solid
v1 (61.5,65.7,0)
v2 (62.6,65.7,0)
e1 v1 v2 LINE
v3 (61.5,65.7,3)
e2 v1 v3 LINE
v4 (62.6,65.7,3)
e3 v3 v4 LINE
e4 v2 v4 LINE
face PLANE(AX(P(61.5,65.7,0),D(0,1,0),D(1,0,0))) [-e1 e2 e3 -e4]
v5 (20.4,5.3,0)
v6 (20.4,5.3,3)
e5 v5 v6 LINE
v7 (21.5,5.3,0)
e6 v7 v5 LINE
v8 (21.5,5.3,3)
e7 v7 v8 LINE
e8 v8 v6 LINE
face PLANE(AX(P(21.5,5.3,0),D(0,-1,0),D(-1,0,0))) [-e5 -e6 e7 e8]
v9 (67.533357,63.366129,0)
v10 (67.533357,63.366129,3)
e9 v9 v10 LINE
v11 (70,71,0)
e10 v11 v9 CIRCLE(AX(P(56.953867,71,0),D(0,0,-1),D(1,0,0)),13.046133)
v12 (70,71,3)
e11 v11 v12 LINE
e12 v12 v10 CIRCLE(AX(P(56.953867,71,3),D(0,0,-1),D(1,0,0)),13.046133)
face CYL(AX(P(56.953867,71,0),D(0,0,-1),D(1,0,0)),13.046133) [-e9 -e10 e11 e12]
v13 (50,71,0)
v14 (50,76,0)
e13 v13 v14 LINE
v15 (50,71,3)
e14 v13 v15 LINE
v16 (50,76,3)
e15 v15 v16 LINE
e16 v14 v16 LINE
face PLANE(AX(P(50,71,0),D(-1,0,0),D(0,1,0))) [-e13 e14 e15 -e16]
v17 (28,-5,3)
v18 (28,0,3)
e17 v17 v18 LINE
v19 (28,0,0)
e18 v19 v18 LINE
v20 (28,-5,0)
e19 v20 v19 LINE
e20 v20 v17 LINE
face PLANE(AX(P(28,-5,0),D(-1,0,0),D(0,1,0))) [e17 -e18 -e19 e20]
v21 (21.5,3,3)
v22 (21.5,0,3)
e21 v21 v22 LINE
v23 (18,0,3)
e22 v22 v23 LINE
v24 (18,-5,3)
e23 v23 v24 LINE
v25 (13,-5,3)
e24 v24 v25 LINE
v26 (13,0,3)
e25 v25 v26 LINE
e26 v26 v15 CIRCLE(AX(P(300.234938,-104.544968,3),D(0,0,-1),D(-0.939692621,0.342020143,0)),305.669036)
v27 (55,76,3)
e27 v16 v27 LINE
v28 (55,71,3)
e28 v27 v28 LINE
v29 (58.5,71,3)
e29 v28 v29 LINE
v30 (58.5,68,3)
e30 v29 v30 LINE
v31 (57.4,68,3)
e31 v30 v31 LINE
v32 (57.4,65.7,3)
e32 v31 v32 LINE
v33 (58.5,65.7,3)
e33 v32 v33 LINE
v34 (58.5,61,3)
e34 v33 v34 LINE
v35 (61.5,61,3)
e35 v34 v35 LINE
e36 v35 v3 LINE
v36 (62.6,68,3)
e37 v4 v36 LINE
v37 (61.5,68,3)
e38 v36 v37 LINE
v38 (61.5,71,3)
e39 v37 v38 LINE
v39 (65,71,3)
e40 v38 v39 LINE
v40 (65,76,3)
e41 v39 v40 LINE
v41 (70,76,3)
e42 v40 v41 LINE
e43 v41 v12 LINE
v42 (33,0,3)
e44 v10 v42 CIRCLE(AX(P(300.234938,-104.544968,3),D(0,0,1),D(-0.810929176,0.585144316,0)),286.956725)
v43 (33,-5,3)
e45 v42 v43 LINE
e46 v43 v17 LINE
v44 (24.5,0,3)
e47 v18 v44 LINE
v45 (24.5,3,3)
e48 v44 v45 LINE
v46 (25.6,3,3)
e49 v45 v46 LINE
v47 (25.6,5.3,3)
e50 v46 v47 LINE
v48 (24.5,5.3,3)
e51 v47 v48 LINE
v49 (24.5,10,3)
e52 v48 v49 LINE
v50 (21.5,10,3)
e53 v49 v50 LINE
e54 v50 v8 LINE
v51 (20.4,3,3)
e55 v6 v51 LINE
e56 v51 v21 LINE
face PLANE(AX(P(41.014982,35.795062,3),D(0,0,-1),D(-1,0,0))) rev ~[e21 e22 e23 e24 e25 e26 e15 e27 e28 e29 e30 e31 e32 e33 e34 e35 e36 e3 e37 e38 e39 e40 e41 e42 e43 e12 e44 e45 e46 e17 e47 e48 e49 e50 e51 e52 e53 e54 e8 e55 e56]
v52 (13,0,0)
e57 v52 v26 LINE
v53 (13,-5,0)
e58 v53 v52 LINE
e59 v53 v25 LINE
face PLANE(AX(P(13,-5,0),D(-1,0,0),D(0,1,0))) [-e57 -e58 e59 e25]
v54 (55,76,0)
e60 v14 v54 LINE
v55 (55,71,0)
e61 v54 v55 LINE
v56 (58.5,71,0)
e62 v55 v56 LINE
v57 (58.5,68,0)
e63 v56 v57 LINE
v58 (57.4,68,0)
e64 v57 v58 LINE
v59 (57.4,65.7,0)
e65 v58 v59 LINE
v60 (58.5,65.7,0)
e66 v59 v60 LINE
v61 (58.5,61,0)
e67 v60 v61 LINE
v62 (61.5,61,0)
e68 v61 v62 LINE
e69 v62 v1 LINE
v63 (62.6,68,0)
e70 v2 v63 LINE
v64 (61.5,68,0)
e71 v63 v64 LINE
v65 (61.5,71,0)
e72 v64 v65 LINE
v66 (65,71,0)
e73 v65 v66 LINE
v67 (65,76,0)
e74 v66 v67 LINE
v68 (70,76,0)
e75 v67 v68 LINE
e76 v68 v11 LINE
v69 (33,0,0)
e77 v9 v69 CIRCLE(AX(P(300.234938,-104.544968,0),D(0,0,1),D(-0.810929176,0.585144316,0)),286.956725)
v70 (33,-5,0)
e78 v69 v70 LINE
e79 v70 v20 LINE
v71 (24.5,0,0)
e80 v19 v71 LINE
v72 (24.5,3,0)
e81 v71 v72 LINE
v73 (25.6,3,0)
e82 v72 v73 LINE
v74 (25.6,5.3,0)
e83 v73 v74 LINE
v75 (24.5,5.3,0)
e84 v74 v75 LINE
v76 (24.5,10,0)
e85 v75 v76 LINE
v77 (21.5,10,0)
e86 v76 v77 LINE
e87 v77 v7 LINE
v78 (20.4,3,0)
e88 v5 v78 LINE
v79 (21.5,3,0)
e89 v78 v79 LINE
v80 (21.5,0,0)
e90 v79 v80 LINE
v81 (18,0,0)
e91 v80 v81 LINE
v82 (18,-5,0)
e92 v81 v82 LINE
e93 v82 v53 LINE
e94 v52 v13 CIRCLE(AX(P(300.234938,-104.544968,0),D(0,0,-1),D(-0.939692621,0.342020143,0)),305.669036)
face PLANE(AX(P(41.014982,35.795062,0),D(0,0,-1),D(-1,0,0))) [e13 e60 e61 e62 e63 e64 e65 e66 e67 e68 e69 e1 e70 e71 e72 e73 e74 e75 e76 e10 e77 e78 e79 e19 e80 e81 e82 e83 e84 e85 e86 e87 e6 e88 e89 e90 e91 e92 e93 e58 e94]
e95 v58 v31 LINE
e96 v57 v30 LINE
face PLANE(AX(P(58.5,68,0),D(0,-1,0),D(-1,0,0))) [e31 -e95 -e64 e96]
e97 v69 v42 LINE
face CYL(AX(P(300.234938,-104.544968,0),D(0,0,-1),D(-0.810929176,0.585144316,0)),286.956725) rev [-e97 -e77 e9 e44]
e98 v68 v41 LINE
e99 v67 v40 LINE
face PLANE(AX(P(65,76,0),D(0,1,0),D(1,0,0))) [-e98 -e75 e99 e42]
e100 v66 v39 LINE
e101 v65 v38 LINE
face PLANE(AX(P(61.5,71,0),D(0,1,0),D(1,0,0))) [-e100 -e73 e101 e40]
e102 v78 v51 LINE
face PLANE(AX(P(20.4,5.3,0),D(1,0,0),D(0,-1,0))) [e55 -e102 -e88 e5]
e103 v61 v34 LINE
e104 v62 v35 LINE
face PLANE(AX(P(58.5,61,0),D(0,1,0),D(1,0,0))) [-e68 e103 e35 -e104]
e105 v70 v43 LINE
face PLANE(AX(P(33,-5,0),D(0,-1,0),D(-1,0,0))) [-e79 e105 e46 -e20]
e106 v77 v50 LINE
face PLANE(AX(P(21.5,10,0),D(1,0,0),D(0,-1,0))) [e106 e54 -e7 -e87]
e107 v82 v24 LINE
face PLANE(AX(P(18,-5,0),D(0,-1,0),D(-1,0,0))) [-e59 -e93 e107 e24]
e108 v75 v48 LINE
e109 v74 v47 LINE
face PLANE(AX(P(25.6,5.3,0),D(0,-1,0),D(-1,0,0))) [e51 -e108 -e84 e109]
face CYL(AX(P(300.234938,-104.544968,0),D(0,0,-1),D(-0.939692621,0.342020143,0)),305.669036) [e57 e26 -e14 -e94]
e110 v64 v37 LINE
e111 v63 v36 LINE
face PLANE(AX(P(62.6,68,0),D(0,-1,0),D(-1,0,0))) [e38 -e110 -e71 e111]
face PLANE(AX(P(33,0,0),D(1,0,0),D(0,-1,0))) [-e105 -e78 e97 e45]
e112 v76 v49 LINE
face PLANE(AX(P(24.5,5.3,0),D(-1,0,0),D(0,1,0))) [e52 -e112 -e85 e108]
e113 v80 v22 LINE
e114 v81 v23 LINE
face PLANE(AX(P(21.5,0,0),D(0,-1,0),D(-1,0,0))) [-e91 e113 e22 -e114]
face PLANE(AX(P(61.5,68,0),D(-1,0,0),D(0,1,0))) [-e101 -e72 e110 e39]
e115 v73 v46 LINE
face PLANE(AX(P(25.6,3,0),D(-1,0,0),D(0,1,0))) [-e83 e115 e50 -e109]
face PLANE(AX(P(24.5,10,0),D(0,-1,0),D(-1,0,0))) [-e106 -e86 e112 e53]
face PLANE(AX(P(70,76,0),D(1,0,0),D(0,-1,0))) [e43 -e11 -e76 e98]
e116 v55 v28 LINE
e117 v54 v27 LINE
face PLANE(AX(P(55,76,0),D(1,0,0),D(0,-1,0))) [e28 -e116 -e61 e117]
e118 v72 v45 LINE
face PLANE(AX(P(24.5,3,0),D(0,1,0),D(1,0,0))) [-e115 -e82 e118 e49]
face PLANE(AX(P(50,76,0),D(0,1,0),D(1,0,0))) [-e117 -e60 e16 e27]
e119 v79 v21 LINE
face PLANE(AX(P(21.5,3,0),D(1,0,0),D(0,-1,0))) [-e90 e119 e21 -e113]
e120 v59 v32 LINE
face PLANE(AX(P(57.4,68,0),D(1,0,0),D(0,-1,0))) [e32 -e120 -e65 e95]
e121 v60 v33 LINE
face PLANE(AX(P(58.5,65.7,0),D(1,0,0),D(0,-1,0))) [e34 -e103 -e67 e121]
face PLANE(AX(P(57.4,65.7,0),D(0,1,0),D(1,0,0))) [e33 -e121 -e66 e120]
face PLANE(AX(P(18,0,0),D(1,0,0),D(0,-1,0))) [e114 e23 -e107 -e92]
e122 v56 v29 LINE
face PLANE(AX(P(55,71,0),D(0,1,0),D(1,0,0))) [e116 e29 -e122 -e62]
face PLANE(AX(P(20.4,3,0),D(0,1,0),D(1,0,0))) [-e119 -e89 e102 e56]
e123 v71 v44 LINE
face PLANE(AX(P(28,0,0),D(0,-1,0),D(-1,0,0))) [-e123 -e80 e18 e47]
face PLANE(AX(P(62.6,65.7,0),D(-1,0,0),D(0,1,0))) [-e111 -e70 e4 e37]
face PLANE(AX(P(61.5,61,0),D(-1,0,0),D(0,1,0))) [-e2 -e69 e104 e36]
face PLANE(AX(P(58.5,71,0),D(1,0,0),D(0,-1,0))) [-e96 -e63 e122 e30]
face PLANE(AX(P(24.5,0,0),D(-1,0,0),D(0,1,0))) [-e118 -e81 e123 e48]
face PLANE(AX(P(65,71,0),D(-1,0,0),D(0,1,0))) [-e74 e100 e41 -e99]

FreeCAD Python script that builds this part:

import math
import FreeCAD as App
import Part
import Sketcher
from FreeCAD import Vector

doc = App.newDocument("Part")
params = doc.addObject("Spreadsheet::Sheet", "Params")
for row, (alias, value) in enumerate([
    ("sketch1_width", "3 mm"),
    ("sketch1_width2", "5 mm"),
    ("sketch1_width3", "3.5 mm"),
    ("sketch1_width4", "1.1 mm"),
    ("sketch1_height", "2.3 mm"),
    ("pad1_length", "3 mm"),
], start=1):
    params.set(f"A{row}", alias)
    params.set(f"B{row}", "=" + value)
    params.setAlias(f"B{row}", alias)

body = doc.addObject("PartDesign::Body", "Body")

# Sketch on XY plane
sketch1 = body.newObject("Sketcher::SketchObject", "Sketch")
sketch1.AttachmentSupport = (doc.getObject("XY_Plane"), [""])
sketch1.MapMode = "FlatFace"
sketch1.addGeometry(Part.LineSegment(Vector(65, 71, 0), Vector(61.5, 71, 0)), False)
sketch1.addGeometry(Part.LineSegment(Vector(61.5, 71, 0), Vector(61.5, 68, 0)), False)
sketch1.addGeometry(Part.LineSegment(Vector(61.5, 68, 0), Vector(62.6, 68, 0)), False)
sketch1.addGeometry(Part.LineSegment(Vector(62.6, 68, 0), Vector(62.6, 65.7, 0)), False)
sketch1.addGeometry(Part.LineSegment(Vector(62.6, 65.7, 0), Vector(61.5, 65.7, 0)), False)
sketch1.addGeometry(Part.LineSegment(Vector(61.5, 65.7, 0), Vector(61.5, 61, 0)), False)
sketch1.addGeometry(Part.LineSegment(Vector(61.5, 61, 0), Vector(58.5, 61, 0)), False)
sketch1.addGeometry(Part.LineSegment(Vector(58.5, 61, 0), Vector(58.5, 65.7, 0)), False)
sketch1.addGeometry(Part.LineSegment(Vector(58.5, 65.7, 0), Vector(57.4, 65.7, 0)), False)
sketch1.addGeometry(Part.LineSegment(Vector(57.4, 65.7, 0), Vector(57.4, 68, 0)), False)
sketch1.addGeometry(Part.LineSegment(Vector(57.4, 68, 0), Vector(58.5, 68, 0)), False)
sketch1.addGeometry(Part.LineSegment(Vector(58.5, 68, 0), Vector(58.5, 71, 0)), False)
sketch1.addGeometry(Part.LineSegment(Vector(58.5, 71, 0), Vector(55, 71, 0)), False)
sketch1.addGeometry(Part.LineSegment(Vector(55, 71, 0), Vector(55, 76, 0)), False)
sketch1.addGeometry(Part.LineSegment(Vector(55, 76, 0), Vector(50, 76, 0)), False)
sketch1.addGeometry(Part.LineSegment(Vector(50, 76, 0), Vector(50, 71, 0)), False)
sketch1.addGeometry(Part.ArcOfCircle(Part.Circle(Vector(300.234938, -104.544968, 0), Vector(0, 0, 1), 305.669036), math.radians(144.949549), math.radians(160)), False)
sketch1.addGeometry(Part.LineSegment(Vector(13, 0, 0), Vector(13, -5, 0)), False)
sketch1.addGeometry(Part.LineSegment(Vector(13, -5, 0), Vector(18, -5, 0)), False)
sketch1.addGeometry(Part.LineSegment(Vector(18, -5, 0), Vector(18, 0, 0)), False)
sketch1.addGeometry(Part.LineSegment(Vector(18, 0, 0), Vector(21.5, 0, 0)), False)
sketch1.addGeometry(Part.LineSegment(Vector(21.5, 0, 0), Vector(21.5, 3, 0)), False)
sketch1.addGeometry(Part.LineSegment(Vector(21.5, 3, 0), Vector(20.4, 3, 0)), False)
sketch1.addGeometry(Part.LineSegment(Vector(20.4, 3, 0), Vector(20.4, 5.3, 0)), False)
sketch1.addGeometry(Part.LineSegment(Vector(20.4, 5.3, 0), Vector(21.5, 5.3, 0)), False)
sketch1.addGeometry(Part.LineSegment(Vector(21.5, 5.3, 0), Vector(21.5, 10, 0)), False)
sketch1.addGeometry(Part.LineSegment(Vector(21.5, 10, 0), Vector(24.5, 10, 0)), False)
sketch1.addGeometry(Part.LineSegment(Vector(24.5, 10, 0), Vector(24.5, 5.3, 0)), False)
sketch1.addGeometry(Part.LineSegment(Vector(24.5, 5.3, 0), Vector(25.6, 5.3, 0)), False)
sketch1.addGeometry(Part.LineSegment(Vector(25.6, 5.3, 0), Vector(25.6, 3, 0)), False)
sketch1.addGeometry(Part.LineSegment(Vector(25.6, 3, 0), Vector(24.5, 3, 0)), False)
sketch1.addGeometry(Part.LineSegment(Vector(24.5, 3, 0), Vector(24.5, 0, 0)), False)
sketch1.addGeometry(Part.LineSegment(Vector(24.5, 0, 0), Vector(28, 0, 0)), False)
sketch1.addGeometry(Part.LineSegment(Vector(28, 0, 0), Vector(28, -5, 0)), False)
sketch1.addGeometry(Part.LineSegment(Vector(28, -5, 0), Vector(33, -5, 0)), False)
sketch1.addGeometry(Part.LineSegment(Vector(33, -5, 0), Vector(33, 0, 0)), False)
sketch1.addGeometry(Part.ArcOfCircle(Part.Circle(Vector(300.234938, -104.544968, 0), Vector(0, 0, 1), 286.956725), math.radians(144.186814), math.radians(158.634068)), False)
sketch1.addGeometry(Part.ArcOfCircle(Part.Circle(Vector(56.953867, 71, 0), Vector(0, 0, 1), 13.046133), math.radians(-35.813186), math.radians(0)), False)
sketch1.addGeometry(Part.LineSegment(Vector(70, 71, 0), Vector(70, 76, 0)), False)
sketch1.addGeometry(Part.LineSegment(Vector(70, 76, 0), Vector(65, 76, 0)), False)
sketch1.addGeometry(Part.LineSegment(Vector(65, 76, 0), Vector(65, 71, 0)), False)
sketch1.addConstraint(Sketcher.Constraint("Coincident", 0, 2, 1, 1))
sketch1.addConstraint(Sketcher.Constraint("Coincident", 1, 2, 2, 1))
sketch1.addConstraint(Sketcher.Constraint("Coincident", 2, 2, 3, 1))
sketch1.addConstraint(Sketcher.Constraint("Coincident", 3, 2, 4, 1))
sketch1.addConstraint(Sketcher.Constraint("Coincident", 4, 2, 5, 1))
sketch1.addConstraint(Sketcher.Constraint("Coincident", 5, 2, 6, 1))
sketch1.addConstraint(Sketcher.Constraint("Coincident", 6, 2, 7, 1))
sketch1.addConstraint(Sketcher.Constraint("Coincident", 7, 2, 8, 1))
sketch1.addConstraint(Sketcher.Constraint("Coincident", 8, 2, 9, 1))
sketch1.addConstraint(Sketcher.Constraint("Coincident", 9, 2, 10, 1))
sketch1.addConstraint(Sketcher.Constraint("Coincident", 10, 2, 11, 1))
sketch1.addConstraint(Sketcher.Constraint("Coincident", 11, 2, 12, 1))
sketch1.addConstraint(Sketcher.Constraint("Coincident", 12, 2, 13, 1))
sketch1.addConstraint(Sketcher.Constraint("Coincident", 13, 2, 14, 1))
sketch1.addConstraint(Sketcher.Constraint("Coincident", 14, 2, 15, 1))
sketch1.addConstraint(Sketcher.Constraint("Coincident", 15, 2, 16, 1))
sketch1.addConstraint(Sketcher.Constraint("Coincident", 16, 2, 17, 1))
sketch1.addConstraint(Sketcher.Constraint("Coincident", 17, 2, 18, 1))
sketch1.addConstraint(Sketcher.Constraint("Coincident", 18, 2, 19, 1))
sketch1.addConstraint(Sketcher.Constraint("Coincident", 19, 2, 20, 1))
sketch1.addConstraint(Sketcher.Constraint("Coincident", 20, 2, 21, 1))
sketch1.addConstraint(Sketcher.Constraint("Coincident", 21, 2, 22, 1))
sketch1.addConstraint(Sketcher.Constraint("Coincident", 22, 2, 23, 1))
sketch1.addConstraint(Sketcher.Constraint("Coincident", 23, 2, 24, 1))
sketch1.addConstraint(Sketcher.Constraint("Coincident", 24, 2, 25, 1))
sketch1.addConstraint(Sketcher.Constraint("Coincident", 25, 2, 26, 1))
sketch1.addConstraint(Sketcher.Constraint("Coincident", 26, 2, 27, 1))
sketch1.addConstraint(Sketcher.Constraint("Coincident", 27, 2, 28, 1))
sketch1.addConstraint(Sketcher.Constraint("Coincident", 28, 2, 29, 1))
sketch1.addConstraint(Sketcher.Constraint("Coincident", 29, 2, 30, 1))
sketch1.addConstraint(Sketcher.Constraint("Coincident", 30, 2, 31, 1))
sketch1.addConstraint(Sketcher.Constraint("Coincident", 31, 2, 32, 1))
sketch1.addConstraint(Sketcher.Constraint("Coincident", 32, 2, 33, 1))
sketch1.addConstraint(Sketcher.Constraint("Coincident", 33, 2, 34, 1))
sketch1.addConstraint(Sketcher.Constraint("Coincident", 34, 2, 35, 1))
sketch1.addConstraint(Sketcher.Constraint("Coincident", 35, 2, 36, 2))
sketch1.addConstraint(Sketcher.Constraint("Tangent", 36, 1, 37, 1))
sketch1.addConstraint(Sketcher.Constraint("Tangent", 37, 2, 38, 1))
sketch1.addConstraint(Sketcher.Constraint("Coincident", 38, 2, 39, 1))
sketch1.addConstraint(Sketcher.Constraint("Coincident", 39, 2, 40, 1))
sketch1.addConstraint(Sketcher.Constraint("Coincident", 40, 2, 0, 1))
sketch1.addConstraint(Sketcher.Constraint("Horizontal", 0))
sketch1.addConstraint(Sketcher.Constraint("Vertical", 1))
sketch1.addConstraint(Sketcher.Constraint("Horizontal", 2))
sketch1.addConstraint(Sketcher.Constraint("Vertical", 3))
sketch1.addConstraint(Sketcher.Constraint("Horizontal", 4))
sketch1.addConstraint(Sketcher.Constraint("Vertical", 5))
sketch1.addConstraint(Sketcher.Constraint("Horizontal", 6))
sketch1.addConstraint(Sketcher.Constraint("Vertical", 7))
sketch1.addConstraint(Sketcher.Constraint("Horizontal", 8))
sketch1.addConstraint(Sketcher.Constraint("Vertical", 9))
sketch1.addConstraint(Sketcher.Constraint("Horizontal", 10))
sketch1.addConstraint(Sketcher.Constraint("Vertical", 11))
sketch1.addConstraint(Sketcher.Constraint("Horizontal", 12))
sketch1.addConstraint(Sketcher.Constraint("Vertical", 13))
sketch1.addConstraint(Sketcher.Constraint("Horizontal", 14))
sketch1.addConstraint(Sketcher.Constraint("Vertical", 15))
sketch1.addConstraint(Sketcher.Constraint("Vertical", 17))
sketch1.addConstraint(Sketcher.Constraint("Horizontal", 18))
sketch1.addConstraint(Sketcher.Constraint("Vertical", 19))
sketch1.addConstraint(Sketcher.Constraint("Horizontal", 20))
sketch1.addConstraint(Sketcher.Constraint("Vertical", 21))
sketch1.addConstraint(Sketcher.Constraint("Horizontal", 22))
sketch1.addConstraint(Sketcher.Constraint("Vertical", 23))
sketch1.addConstraint(Sketcher.Constraint("Horizontal", 24))
sketch1.addConstraint(Sketcher.Constraint("Vertical", 25))
sketch1.addConstraint(Sketcher.Constraint("Horizontal", 26))
sketch1.addConstraint(Sketcher.Constraint("Vertical", 27))
sketch1.addConstraint(Sketcher.Constraint("Horizontal", 28))
sketch1.addConstraint(Sketcher.Constraint("Vertical", 29))
sketch1.addConstraint(Sketcher.Constraint("Horizontal", 30))
sketch1.addConstraint(Sketcher.Constraint("Vertical", 31))
sketch1.addConstraint(Sketcher.Constraint("Horizontal", 32))
sketch1.addConstraint(Sketcher.Constraint("Vertical", 33))
sketch1.addConstraint(Sketcher.Constraint("Horizontal", 34))
sketch1.addConstraint(Sketcher.Constraint("Vertical", 35))
sketch1.addConstraint(Sketcher.Constraint("Vertical", 38))
sketch1.addConstraint(Sketcher.Constraint("Horizontal", 39))
sketch1.addConstraint(Sketcher.Constraint("Vertical", 40))
sketch1.addConstraint(Sketcher.Constraint("Coincident", 36, 3, 16, 3))
sketch1.addConstraint(Sketcher.Constraint("PointOnObject", 16, 2, -1))
sketch1.addConstraint(Sketcher.Constraint("PointOnObject", 19, 2, -1))
sketch1.addConstraint(Sketcher.Constraint("PointOnObject", 31, 2, -1))
sketch1.addConstraint(Sketcher.Constraint("PointOnObject", 35, 2, -1))
sketch1.addConstraint(Sketcher.Constraint("Horizontal", 37, 3, 0, 2))
sketch1.addConstraint(Sketcher.Constraint("Horizontal", 4, 2, 7, 2))
sketch1.addConstraint(Sketcher.Constraint("Horizontal", 2, 2, 9, 2))
sketch1.addConstraint(Sketcher.Constraint("Horizontal", 0, 2, 11, 2))
sketch1.addConstraint(Sketcher.Constraint("Horizontal", 12, 2, 15, 2))
sketch1.addConstraint(Sketcher.Constraint("Horizontal", 24, 2, 27, 2))
sketch1.addConstraint(Sketcher.Constraint("Horizontal", 22, 2, 29, 2))
sketch1.addConstraint(Sketcher.Constraint("Horizontal", 18, 2, 33, 2))
sketch1.addConstraint(Sketcher.Constraint("Horizontal", 14, 2, 38, 2))
sketch1.addConstraint(Sketcher.Constraint("Vertical", 1, 2, 4, 2))
sketch1.addConstraint(Sketcher.Constraint("Vertical", 7, 2, 10, 2))
sketch1.addConstraint(Sketcher.Constraint("Vertical", 21, 2, 24, 2))
sketch1.addConstraint(Sketcher.Constraint("Vertical", 27, 2, 30, 2))
sketch1.addConstraint(Sketcher.Constraint("Equal", 4, 8))
sketch1.addConstraint(Sketcher.Constraint("Equal", 0, 12))
sketch1.addConstraint(Sketcher.Constraint("Equal", 14, 18))
sketch1.addConstraint(Sketcher.Constraint("Equal", 12, 20))
sketch1.addConstraint(Sketcher.Constraint("Equal", 10, 22))
sketch1.addConstraint(Sketcher.Constraint("Equal", 6, 26))
sketch1.addConstraint(Sketcher.Constraint("Equal", 24, 28))
sketch1.addConstraint(Sketcher.Constraint("Equal", 20, 32))
sketch1.addConstraint(Sketcher.Constraint("Equal", 18, 34))
sketch1.addConstraint(Sketcher.Constraint("Equal", 34, 39))
sketch1.addConstraint(Sketcher.Constraint("Equal", 26, 1))
sketch1.addConstraint(Sketcher.Constraint("Equal", 39, 13))
sketch1.addConstraint(Sketcher.Constraint("Equal", 15, 17))
sketch1.addConstraint(Sketcher.Constraint("Equal", 11, 21))
sketch1.addConstraint(Sketcher.Constraint("Equal", 9, 23))
sketch1.addConstraint(Sketcher.Constraint("Equal", 7, 25))
sketch1.addConstraint(Sketcher.Constraint("DistanceX", 6, 2, 6, 1, 3.0))
sketch1.addConstraint(Sketcher.Constraint("DistanceX", 14, 2, 14, 1, 5.0))
sketch1.addConstraint(Sketcher.Constraint("DistanceX", 0, 2, 0, 1, 3.5))
sketch1.addConstraint(Sketcher.Constraint("DistanceX", 2, 1, 2, 2, 1.1))
sketch1.addConstraint(Sketcher.Constraint("DistanceY", 3, 2, 3, 1, 2.3))
sketch1.addConstraint(Sketcher.Constraint("DistanceY", 5, 2, 5, 1, 4.7))
sketch1.addConstraint(Sketcher.Constraint("DistanceY", -1, 1, 37, 3, 71.0))
sketch1.addConstraint(Sketcher.Constraint("DistanceX", -1, 1, 12, 2, 55.0))
sketch1.addConstraint(Sketcher.Constraint("DistanceX", -1, 1, 17, 2, 13.0))
sketch1.addConstraint(Sketcher.Constraint("Radius", 16, 305.669036))
sketch1.setExpression("Constraints[113]", "Params.sketch1_width")
sketch1.setExpression("Constraints[114]", "Params.sketch1_width2")
sketch1.setExpression("Constraints[115]", "Params.sketch1_width3")
sketch1.setExpression("Constraints[116]", "Params.sketch1_width4")
sketch1.setExpression("Constraints[117]", "Params.sketch1_height")
pad1 = body.newObject("PartDesign::Pad", "Pad")
pad1.Profile = sketch1
pad1.setExpression("Length", "Params.pad1_length")

doc.recompute()
